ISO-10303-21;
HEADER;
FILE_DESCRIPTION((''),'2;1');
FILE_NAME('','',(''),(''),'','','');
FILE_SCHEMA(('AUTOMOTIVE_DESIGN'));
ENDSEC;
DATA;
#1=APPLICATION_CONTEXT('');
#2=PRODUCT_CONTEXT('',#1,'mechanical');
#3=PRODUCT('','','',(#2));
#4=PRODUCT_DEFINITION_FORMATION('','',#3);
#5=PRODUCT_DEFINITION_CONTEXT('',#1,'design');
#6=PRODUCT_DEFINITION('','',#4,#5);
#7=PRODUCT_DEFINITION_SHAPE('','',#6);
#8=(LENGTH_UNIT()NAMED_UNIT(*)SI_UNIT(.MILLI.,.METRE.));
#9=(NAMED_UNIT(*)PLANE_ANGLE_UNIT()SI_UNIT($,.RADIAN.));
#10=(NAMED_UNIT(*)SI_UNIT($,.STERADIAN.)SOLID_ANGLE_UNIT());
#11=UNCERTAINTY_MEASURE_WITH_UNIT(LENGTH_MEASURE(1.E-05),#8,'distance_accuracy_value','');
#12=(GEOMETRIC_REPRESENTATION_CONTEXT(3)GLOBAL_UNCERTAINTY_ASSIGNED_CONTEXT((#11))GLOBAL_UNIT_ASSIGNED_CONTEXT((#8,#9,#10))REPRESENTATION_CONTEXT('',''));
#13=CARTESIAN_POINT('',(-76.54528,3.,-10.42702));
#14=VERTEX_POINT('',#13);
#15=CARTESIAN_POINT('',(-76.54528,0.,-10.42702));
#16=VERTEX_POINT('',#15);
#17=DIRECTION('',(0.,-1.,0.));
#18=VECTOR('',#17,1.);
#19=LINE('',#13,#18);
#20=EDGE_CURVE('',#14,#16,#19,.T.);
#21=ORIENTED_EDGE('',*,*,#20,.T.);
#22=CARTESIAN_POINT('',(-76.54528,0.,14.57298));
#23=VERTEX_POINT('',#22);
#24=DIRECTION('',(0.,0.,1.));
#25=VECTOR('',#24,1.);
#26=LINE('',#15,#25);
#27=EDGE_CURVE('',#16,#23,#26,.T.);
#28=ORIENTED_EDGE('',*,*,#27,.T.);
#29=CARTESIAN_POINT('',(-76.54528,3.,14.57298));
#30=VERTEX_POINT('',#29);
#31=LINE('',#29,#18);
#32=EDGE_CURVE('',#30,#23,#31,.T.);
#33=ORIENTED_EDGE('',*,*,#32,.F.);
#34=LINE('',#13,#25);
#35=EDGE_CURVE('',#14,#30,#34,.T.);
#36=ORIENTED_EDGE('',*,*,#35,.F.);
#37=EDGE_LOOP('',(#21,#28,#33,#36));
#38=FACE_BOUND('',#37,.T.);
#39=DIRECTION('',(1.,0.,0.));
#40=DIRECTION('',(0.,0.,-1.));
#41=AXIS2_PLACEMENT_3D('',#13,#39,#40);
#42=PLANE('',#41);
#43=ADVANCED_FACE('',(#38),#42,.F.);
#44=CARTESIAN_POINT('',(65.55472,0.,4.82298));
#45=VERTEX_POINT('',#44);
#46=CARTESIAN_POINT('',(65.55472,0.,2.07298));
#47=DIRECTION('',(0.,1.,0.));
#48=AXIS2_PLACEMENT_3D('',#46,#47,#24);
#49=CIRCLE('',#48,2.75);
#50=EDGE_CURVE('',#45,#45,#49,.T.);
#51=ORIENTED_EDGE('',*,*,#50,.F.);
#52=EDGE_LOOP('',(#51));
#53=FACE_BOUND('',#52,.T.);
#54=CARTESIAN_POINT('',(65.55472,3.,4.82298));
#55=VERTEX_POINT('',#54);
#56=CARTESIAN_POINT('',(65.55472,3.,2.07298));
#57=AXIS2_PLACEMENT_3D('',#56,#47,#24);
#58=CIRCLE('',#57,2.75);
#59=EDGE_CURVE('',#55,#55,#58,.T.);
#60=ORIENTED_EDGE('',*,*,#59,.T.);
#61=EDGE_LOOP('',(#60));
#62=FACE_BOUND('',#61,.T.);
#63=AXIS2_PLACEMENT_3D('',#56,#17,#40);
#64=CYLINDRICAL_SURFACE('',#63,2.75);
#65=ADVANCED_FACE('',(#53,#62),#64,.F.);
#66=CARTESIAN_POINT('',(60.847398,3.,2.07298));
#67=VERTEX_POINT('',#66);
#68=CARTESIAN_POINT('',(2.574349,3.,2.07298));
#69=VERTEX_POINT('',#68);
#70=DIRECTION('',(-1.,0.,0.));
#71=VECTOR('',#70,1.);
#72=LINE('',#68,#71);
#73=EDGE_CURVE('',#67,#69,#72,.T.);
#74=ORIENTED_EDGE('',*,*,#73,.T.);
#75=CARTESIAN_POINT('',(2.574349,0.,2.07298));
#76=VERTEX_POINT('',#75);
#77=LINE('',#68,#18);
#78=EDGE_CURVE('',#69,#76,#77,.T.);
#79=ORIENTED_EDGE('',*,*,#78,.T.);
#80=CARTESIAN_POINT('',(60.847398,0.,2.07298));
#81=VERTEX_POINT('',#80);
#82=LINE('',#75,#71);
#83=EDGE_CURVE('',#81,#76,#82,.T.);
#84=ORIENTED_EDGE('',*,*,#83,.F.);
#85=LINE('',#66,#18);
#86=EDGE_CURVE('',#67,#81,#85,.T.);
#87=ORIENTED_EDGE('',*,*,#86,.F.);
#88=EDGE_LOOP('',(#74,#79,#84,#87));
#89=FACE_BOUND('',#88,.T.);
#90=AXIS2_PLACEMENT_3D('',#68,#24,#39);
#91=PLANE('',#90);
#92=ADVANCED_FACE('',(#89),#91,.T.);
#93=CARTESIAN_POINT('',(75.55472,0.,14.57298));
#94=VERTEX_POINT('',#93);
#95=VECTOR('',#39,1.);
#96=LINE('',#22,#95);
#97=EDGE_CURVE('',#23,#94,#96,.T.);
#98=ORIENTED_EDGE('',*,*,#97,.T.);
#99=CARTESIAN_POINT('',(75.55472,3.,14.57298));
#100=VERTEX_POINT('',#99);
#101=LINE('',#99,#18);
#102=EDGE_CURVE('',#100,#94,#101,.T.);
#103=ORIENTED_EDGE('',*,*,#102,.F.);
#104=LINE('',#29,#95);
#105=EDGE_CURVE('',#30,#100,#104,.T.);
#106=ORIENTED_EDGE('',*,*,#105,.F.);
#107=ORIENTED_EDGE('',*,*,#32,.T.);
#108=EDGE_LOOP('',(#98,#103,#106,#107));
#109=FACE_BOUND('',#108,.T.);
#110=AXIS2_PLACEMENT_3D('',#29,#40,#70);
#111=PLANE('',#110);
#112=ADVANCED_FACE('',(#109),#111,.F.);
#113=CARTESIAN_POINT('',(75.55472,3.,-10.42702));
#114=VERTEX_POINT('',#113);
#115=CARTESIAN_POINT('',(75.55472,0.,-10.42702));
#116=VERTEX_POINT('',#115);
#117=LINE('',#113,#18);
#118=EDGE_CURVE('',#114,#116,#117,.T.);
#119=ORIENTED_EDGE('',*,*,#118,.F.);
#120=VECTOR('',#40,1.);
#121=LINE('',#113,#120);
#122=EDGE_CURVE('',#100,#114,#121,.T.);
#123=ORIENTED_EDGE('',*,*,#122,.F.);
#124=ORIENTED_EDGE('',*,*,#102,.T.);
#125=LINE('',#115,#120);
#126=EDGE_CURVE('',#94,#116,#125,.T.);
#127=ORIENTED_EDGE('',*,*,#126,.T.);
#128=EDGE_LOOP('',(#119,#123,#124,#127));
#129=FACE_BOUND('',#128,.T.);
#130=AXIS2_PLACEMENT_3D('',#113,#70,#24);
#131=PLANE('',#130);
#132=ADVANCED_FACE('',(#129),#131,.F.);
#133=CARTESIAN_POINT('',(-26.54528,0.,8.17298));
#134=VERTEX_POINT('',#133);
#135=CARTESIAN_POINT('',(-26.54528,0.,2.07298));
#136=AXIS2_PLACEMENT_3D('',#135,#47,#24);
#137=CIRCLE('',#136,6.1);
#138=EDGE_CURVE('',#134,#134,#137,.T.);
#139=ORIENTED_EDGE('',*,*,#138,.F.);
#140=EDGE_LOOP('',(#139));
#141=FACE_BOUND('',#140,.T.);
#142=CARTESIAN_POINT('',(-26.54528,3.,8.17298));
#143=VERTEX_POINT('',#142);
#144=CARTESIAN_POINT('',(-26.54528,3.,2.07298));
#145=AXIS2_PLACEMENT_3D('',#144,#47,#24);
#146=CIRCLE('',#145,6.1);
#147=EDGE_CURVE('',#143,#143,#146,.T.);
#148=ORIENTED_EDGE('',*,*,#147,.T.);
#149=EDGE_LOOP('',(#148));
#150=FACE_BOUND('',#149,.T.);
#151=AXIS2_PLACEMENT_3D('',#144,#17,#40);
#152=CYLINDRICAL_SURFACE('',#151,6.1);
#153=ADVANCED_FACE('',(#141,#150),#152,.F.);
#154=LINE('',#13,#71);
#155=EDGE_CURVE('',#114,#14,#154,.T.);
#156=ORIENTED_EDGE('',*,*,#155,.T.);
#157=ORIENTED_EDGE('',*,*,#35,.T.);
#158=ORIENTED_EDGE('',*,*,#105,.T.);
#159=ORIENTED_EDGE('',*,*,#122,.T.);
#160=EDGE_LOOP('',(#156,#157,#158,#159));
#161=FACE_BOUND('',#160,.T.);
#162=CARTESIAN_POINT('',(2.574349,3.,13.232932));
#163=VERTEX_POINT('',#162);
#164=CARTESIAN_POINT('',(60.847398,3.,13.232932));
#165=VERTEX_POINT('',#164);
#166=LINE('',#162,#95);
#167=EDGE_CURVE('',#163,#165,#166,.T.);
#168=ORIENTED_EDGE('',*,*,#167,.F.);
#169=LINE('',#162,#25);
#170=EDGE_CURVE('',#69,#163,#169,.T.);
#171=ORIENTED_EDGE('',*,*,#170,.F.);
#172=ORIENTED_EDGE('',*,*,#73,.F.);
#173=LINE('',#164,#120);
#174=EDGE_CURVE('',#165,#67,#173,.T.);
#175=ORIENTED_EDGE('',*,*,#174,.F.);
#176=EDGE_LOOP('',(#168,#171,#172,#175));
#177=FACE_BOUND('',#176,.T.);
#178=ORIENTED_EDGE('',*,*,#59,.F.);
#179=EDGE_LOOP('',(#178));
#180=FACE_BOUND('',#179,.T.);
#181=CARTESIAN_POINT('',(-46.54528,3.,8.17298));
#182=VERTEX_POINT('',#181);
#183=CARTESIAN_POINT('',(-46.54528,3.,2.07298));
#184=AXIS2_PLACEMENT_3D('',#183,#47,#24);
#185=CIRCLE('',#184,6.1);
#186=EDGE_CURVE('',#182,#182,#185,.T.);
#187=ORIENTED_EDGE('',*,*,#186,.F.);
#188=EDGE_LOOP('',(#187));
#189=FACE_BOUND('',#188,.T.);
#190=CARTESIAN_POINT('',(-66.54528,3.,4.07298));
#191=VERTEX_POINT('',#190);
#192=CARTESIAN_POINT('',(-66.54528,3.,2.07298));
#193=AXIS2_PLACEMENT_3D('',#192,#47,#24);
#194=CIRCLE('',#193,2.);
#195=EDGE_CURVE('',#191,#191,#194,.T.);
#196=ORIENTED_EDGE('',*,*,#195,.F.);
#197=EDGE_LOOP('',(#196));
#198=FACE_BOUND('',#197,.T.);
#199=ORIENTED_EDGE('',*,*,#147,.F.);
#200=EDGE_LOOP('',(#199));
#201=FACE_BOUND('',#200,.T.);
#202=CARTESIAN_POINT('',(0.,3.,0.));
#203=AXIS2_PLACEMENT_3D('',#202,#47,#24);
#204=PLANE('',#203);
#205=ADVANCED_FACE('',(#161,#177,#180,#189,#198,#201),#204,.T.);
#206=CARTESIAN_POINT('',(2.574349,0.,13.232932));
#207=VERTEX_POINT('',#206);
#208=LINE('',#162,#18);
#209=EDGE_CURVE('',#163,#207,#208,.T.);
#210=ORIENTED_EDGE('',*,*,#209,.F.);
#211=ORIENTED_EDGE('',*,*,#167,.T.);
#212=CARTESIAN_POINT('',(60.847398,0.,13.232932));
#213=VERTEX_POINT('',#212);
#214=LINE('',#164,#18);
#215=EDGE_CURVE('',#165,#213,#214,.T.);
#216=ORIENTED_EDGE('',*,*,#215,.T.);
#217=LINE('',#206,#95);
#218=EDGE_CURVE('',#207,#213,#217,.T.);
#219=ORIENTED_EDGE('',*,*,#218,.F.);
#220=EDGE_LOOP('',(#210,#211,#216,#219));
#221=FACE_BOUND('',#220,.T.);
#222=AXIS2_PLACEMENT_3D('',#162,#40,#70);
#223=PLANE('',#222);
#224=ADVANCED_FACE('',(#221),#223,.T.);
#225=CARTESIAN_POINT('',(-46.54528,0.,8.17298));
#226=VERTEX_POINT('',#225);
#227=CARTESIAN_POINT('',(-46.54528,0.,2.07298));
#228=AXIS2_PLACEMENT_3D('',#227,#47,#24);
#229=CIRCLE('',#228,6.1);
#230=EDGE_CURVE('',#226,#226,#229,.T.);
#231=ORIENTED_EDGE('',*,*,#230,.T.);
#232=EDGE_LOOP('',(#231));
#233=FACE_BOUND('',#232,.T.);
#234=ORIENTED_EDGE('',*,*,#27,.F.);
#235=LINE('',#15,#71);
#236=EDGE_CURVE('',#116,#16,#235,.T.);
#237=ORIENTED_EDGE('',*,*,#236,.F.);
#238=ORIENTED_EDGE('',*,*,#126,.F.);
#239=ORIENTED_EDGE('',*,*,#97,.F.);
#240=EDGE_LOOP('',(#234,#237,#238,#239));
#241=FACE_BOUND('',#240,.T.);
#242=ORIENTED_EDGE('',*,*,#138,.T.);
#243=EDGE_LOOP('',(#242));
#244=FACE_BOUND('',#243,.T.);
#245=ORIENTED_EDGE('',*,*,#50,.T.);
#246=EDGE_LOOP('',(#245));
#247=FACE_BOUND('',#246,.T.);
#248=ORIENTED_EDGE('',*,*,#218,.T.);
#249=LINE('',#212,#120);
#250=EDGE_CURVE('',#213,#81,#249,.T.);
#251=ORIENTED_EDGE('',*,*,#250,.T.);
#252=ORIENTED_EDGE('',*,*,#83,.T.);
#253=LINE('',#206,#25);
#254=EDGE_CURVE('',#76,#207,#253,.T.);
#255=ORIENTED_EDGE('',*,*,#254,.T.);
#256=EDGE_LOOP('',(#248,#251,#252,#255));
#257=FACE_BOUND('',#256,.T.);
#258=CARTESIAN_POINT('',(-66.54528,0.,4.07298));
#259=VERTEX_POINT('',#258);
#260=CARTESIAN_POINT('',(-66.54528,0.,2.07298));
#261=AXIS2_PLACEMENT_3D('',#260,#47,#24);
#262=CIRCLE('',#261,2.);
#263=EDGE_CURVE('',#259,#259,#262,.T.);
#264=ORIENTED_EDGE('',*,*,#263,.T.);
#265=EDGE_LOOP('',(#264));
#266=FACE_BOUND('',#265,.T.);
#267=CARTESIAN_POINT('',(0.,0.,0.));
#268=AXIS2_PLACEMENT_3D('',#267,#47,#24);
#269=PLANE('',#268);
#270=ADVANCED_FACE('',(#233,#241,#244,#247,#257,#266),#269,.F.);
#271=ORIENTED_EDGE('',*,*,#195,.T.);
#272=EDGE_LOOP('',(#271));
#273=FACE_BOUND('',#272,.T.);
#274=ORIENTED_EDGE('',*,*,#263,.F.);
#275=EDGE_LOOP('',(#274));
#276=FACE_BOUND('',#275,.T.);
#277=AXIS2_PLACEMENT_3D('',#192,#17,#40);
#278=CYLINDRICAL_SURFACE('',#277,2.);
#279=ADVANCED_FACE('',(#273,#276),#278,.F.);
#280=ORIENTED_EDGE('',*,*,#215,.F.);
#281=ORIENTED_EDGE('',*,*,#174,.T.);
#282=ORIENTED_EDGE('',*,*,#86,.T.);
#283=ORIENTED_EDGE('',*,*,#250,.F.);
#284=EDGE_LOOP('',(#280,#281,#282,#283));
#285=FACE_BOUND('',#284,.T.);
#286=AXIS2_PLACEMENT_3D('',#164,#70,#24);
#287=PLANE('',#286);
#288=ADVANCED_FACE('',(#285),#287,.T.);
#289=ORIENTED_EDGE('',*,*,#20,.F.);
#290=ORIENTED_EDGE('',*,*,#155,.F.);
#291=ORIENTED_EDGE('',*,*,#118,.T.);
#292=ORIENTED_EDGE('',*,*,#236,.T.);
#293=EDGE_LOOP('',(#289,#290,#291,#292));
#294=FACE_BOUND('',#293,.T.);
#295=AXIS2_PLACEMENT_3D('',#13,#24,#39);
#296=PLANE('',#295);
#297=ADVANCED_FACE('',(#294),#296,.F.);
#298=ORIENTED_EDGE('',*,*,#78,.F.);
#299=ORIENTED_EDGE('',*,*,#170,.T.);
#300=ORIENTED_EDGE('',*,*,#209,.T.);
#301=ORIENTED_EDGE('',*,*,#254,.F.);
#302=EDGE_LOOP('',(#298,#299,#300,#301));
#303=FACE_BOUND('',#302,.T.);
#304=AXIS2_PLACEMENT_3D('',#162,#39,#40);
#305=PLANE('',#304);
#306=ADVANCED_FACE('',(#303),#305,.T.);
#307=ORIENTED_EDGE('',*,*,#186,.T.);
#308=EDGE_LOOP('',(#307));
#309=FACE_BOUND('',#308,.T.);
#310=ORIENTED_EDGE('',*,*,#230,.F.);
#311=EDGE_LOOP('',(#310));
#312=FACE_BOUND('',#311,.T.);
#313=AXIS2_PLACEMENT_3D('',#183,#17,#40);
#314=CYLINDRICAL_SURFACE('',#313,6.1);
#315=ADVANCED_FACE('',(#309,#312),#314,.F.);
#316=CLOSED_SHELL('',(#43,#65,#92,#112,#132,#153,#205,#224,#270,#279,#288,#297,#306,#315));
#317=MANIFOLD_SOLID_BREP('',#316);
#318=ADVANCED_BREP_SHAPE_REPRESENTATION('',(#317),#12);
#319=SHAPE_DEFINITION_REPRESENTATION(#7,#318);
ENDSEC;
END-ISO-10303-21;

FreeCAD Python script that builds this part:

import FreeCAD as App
import Part
import Sketcher
from FreeCAD import Vector
Q = App.Units.Quantity

doc = App.newDocument("Part")
body = doc.addObject("PartDesign::Body", "Body")

sketch1 = body.newObject("Sketcher::SketchObject", "Sketch")
sketch1.AttachmentSupport = (doc.getObject("XZ_Plane"), [""])
sketch1.MapMode = "FlatFace"
sketch1.addGeometry([
    Part.LineSegment(Vector(-76.5, -10.4, 0), Vector(-76.5, 14.6, 0)),
    Part.LineSegment(Vector(-76.5, 14.6, 0), Vector(75.6, 14.6, 0)),
    Part.LineSegment(Vector(75.6, 14.6, 0), Vector(75.6, -10.4, 0)),
    Part.LineSegment(Vector(75.6, -10.4, 0), Vector(-76.5, -10.4, 0)),
    Part.Circle(Vector(-66.5, 2.1, 0), Vector(0, 0, 1), 2),
    Part.Circle(Vector(65.6, 2.1, 0), Vector(0, 0, 1), 2.8),
], False)
sketch1.addConstraint([
    Sketcher.Constraint("Coincident", 0, 2, 1, 1),
    Sketcher.Constraint("Coincident", 1, 2, 2, 1),
    Sketcher.Constraint("Coincident", 2, 2, 3, 1),
    Sketcher.Constraint("Coincident", 3, 2, 0, 1),
    Sketcher.Constraint("Vertical", 0),
    Sketcher.Constraint("Horizontal", 1),
    Sketcher.Constraint("Vertical", 2),
    Sketcher.Constraint("Horizontal", 3),
    Sketcher.Constraint("Horizontal", 4, 3, 5, 3),
    Sketcher.Constraint("Diameter", 4, Q("4 mm")),
    Sketcher.Constraint("Diameter", 5, Q("5.5 mm")),
    Sketcher.Constraint("DistanceY", 0, 1, 0, 2, Q("25 mm")),
    Sketcher.Constraint("DistanceX", 1, 1, 1, 2, Q("152.1 mm")),
    Sketcher.Constraint("DistanceX", 0, 2, 4, 3, Q("10 mm")),
    Sketcher.Constraint("DistanceX", 5, 3, 1, 2, Q("10 mm")),
    Sketcher.Constraint("DistanceY", 4, 3, 0, 2, Q("12.5 mm")),
    Sketcher.Constraint("DistanceX", 4, 3, -1, 1, Q("66.54528 mm")),
    Sketcher.Constraint("DistanceY", -1, 1, 4, 3, Q("2.07298 mm")),
])
pad1 = body.newObject("PartDesign::Pad", "Pad")
pad1.Profile = sketch1
pad1.Length = 3
pad1.Reversed = True

sketch2 = body.newObject("Sketcher::SketchObject", "Sketch001")
sketch2.AttachmentSupport = (doc.getObject("XZ_Plane"), [""])
sketch2.MapMode = "FlatFace"
sketch2.addGeometry([
    Part.Circle(Vector(-47, 2, 0), Vector(0, 0, 1), 6),
    Part.Circle(Vector(-27, 2, 0), Vector(0, 0, 1), 6),
    Part.LineSegment(Vector(3, 2, 0), Vector(3, 13, 0)),
    Part.LineSegment(Vector(3, 13, 0), Vector(61, 13, 0)),
    Part.LineSegment(Vector(61, 13, 0), Vector(61, 2, 0)),
    Part.LineSegment(Vector(61, 2, 0), Vector(3, 2, 0)),
], False)
sketch2.addConstraint([
    Sketcher.Constraint("Coincident", 2, 2, 3, 1),
    Sketcher.Constraint("Coincident", 3, 2, 4, 1),
    Sketcher.Constraint("Coincident", 4, 2, 5, 1),
    Sketcher.Constraint("Coincident", 5, 2, 2, 1),
    Sketcher.Constraint("Vertical", 2),
    Sketcher.Constraint("Horizontal", 3),
    Sketcher.Constraint("Vertical", 4),
    Sketcher.Constraint("Horizontal", 5),
    Sketcher.Constraint("Equal", 0, 1),
    Sketcher.Constraint("Horizontal", 0, 3, 1, 3),
    Sketcher.Constraint("Horizontal", 1, 3, 4, 2),
    Sketcher.Constraint("Diameter", 0, Q("12.2 mm")),
    Sketcher.Constraint("DistanceX", 0, 3, 1, 3, Q("20 mm")),
    Sketcher.Constraint("DistanceX", 3, 1, 3, 2, Q("58.273049 mm")),
    Sketcher.Constraint("DistanceX", -1, 1, 3, 2, Q("60.847398 mm")),
    Sketcher.Constraint("DistanceY", 2, 1, 2, 2, Q("11.159952 mm")),
    Sketcher.Constraint("DistanceX", 0, 3, -1, 1, Q("46.54528 mm")),
    Sketcher.Constraint("DistanceY", -1, 1, 0, 3, Q("2.07298 mm")),
])
pocket1 = body.newObject("PartDesign::Pocket", "Pocket")
pocket1.Profile = sketch2
pocket1.Type = "ThroughAll"

doc.recompute()
